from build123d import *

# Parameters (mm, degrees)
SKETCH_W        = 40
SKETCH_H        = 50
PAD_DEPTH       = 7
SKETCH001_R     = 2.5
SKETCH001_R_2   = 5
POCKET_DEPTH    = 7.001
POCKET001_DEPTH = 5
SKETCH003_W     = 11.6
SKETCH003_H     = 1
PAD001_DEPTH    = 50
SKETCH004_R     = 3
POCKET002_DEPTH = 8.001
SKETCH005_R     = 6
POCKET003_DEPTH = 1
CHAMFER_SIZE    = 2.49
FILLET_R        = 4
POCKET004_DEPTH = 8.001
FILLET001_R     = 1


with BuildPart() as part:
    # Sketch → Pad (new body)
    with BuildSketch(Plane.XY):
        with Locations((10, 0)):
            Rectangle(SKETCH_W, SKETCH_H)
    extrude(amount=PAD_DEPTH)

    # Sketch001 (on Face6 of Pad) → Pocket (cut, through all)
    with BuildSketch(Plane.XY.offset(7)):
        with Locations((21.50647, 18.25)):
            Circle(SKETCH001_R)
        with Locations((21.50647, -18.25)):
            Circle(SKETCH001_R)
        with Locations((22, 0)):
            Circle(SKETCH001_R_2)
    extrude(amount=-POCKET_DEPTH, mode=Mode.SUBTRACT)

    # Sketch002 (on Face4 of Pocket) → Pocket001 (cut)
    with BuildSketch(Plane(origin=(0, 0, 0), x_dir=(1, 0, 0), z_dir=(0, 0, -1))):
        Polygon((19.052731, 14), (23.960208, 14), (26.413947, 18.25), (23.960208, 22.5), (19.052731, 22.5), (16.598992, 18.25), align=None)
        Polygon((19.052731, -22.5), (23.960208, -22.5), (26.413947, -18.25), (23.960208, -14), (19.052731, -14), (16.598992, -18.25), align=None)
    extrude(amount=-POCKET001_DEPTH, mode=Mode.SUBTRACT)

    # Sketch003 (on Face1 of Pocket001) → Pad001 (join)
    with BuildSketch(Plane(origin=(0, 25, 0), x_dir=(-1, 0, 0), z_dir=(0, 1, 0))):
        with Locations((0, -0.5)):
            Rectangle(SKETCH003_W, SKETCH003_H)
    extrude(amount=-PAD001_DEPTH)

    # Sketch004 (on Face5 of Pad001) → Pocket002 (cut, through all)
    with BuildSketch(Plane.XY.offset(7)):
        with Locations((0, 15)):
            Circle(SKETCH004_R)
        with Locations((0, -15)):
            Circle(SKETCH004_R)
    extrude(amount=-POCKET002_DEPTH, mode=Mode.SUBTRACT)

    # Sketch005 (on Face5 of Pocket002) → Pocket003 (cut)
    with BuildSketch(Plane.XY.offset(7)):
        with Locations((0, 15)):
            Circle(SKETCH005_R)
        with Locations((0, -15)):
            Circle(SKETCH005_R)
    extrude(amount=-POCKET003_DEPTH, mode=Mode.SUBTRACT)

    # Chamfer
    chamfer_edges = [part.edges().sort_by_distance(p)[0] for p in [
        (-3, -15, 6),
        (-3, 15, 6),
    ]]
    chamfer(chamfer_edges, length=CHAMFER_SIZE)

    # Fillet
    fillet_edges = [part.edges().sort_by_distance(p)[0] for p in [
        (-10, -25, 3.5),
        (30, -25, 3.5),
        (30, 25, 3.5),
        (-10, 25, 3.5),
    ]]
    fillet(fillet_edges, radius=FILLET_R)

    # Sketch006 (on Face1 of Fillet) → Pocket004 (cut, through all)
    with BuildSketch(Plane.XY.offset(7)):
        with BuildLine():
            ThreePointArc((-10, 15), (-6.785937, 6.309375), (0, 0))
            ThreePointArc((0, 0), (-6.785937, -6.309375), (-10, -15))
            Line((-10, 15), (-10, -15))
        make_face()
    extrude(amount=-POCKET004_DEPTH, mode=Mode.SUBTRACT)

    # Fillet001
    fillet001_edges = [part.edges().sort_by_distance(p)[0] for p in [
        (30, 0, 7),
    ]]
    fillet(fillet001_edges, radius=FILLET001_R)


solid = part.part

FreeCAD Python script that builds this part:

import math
import FreeCAD as App
import Part
import Sketcher

V = App.Vector
Q = App.Units.Quantity


def edges_at(feature, points):
    """Names of the edges that pass closest to the given points."""
    edges = feature.Shape.Edges
    near = lambda p: min(range(len(edges)), key=lambda i: edges[i].distToShape(Part.Vertex(*p))[0])
    return sorted({f"Edge{near(p) + 1}" for p in points})


def add_polygon(sketch, points):
    """Adds a closed chain of lines whose ends are joined by coincident constraints."""
    first, n = sketch.GeometryCount, len(points)
    for a, b in zip(points, points[1:] + points[:1]):
        sketch.addGeometry(Part.LineSegment(App.Vector(*a, 0), App.Vector(*b, 0)), False)
    for i in range(n):
        sketch.addConstraint(Sketcher.Constraint("Coincident", first + i, 2, first + (i + 1) % n, 1))

doc = App.newDocument("Part")
body = doc.addObject("PartDesign::Body", "Body")

# Sketch on XY plane
sketch1 = body.newObject("Sketcher::SketchObject", "Sketch")
sketch1.AttachmentSupport = (doc.getObject("XY_Plane"), [""])
sketch1.MapMode = "FlatFace"
add_polygon(sketch1, [(-10, 25), (-10, -25), (30, -25), (30, 25)])  # lines 0-3
sketch1.addConstraint([
    Sketcher.Constraint("Vertical", 0),
    Sketcher.Constraint("Horizontal", 1),
    Sketcher.Constraint("Vertical", 2),
    Sketcher.Constraint("Horizontal", 3),
    Sketcher.Constraint("DistanceX", 1, 1, 1, 2, Q("40 mm")),
    Sketcher.Constraint("DistanceY", 0, 2, 0, 1, Q("50 mm")),
    Sketcher.Constraint("DistanceX", 0, 2, -1, 1, Q("10 mm")),
    Sketcher.Constraint("DistanceY", 0, 2, -1, 1, Q("25 mm")),
])
pad1 = body.newObject("PartDesign::Pad", "Pad")
pad1.Profile = sketch1
pad1.Length = 7

# Sketch on XY plane
sketch2 = body.newObject("Sketcher::SketchObject", "Sketch001")
sketch2.AttachmentSupport = (doc.getObject("XY_Plane"), [""])
sketch2.MapMode = "FlatFace"
sketch2.AttachmentOffset = App.Placement(V(0, 0, 7), App.Rotation())
sketch2.addGeometry([
    Part.Circle(V(21.5, 18.2, 0), V(0, 0, 1), 2.5),
    Part.Circle(V(21.5, -18.2, 0), V(0, 0, 1), 2.5),
    Part.Circle(V(22, 0, 0), V(0, 0, 1), 5),
], False)
sketch2.addConstraint([
    Sketcher.Constraint("Equal", 0, 1),
    Sketcher.Constraint("Symmetric", 0, 3, 1, 3, -1),
    Sketcher.Constraint("PointOnObject", 2, 3, -1),
    Sketcher.Constraint("Diameter", 0, Q("5 mm")),
    Sketcher.Constraint("Diameter", 2, Q("10 mm")),
    Sketcher.Constraint("DistanceX", -1, 1, 2, 3, Q("22 mm")),
    Sketcher.Constraint("DistanceY", 1, 3, 0, 3, Q("36.5 mm")),
    Sketcher.Constraint("DistanceX", -1, 1, 0, 3, Q("21.50647 mm")),
])
pocket1 = body.newObject("PartDesign::Pocket", "Pocket")
pocket1.Profile = sketch2
pocket1.Type = "ThroughAll"

# Sketch on XY plane
sketch3 = body.newObject("Sketcher::SketchObject", "Sketch002")
sketch3.AttachmentSupport = (doc.getObject("XY_Plane"), [""])
sketch3.MapMode = "FlatFace"
add_polygon(sketch3, [(19.1, -14), (24, -14), (26.4, -18.2), (24, -22.5), (19.1, -22.5), (16.6, -18.2)])  # lines 0-5
add_polygon(sketch3, [(19.1, 22.5), (24, 22.5), (26.4, 18.2), (24, 14), (19.1, 14), (16.6, 18.2)])  # lines 6-11
sketch3.addConstraint([
    Sketcher.Constraint("Horizontal", 0),
    Sketcher.Constraint("Horizontal", 3),
    Sketcher.Constraint("Horizontal", 6),
    Sketcher.Constraint("Horizontal", 9),
    Sketcher.Constraint("Symmetric", 2, 2, 6, 2, -1),
    Sketcher.Constraint("Symmetric", 1, 2, 7, 2, -1),
    Sketcher.Constraint("Symmetric", 0, 2, 8, 2, -1),
    Sketcher.Constraint("Symmetric", 4, 2, 10, 2, -1),
    Sketcher.Constraint("Parallel", 1, 4),
    Sketcher.Constraint("Parallel", 2, 5),
    Sketcher.Constraint("Parallel", 4, 7),
    Sketcher.Constraint("Parallel", 7, 10),
    Sketcher.Constraint("Parallel", 8, 11),
    Sketcher.Constraint("Horizontal", 1, 2, 4, 2),
    Sketcher.Constraint("Vertical", 0, 2, 2, 2),
    Sketcher.Constraint("Angle", 1, Q("-59.999996 deg")),
    Sketcher.Constraint("DistanceY", 0, 2, -1, 1, Q("14 mm")),
    Sketcher.Constraint("DistanceY", 2, 2, 6, 2, Q("45 mm")),
    Sketcher.Constraint("DistanceX", 0, 1, 0, 2, Q("4.907477 mm")),
    Sketcher.Constraint("DistanceX", -1, 1, 0, 2, Q("23.960208 mm")),
])
pocket2 = body.newObject("PartDesign::Pocket", "Pocket001")
pocket2.Profile = sketch3
pocket2.Length = 5
pocket2.Reversed = True

# Sketch on XZ plane
sketch4 = body.newObject("Sketcher::SketchObject", "Sketch003")
sketch4.AttachmentSupport = (doc.getObject("XZ_Plane"), [""])
sketch4.MapMode = "FlatFace"
sketch4.AttachmentOffset = App.Placement(V(0, 0, -25), App.Rotation())
add_polygon(sketch4, [(5.8, 0), (5.8, -1), (-5.8, -1), (-5.8, 0)])  # lines 0-3
sketch4.addConstraint([
    Sketcher.Constraint("Vertical", 0),
    Sketcher.Constraint("Horizontal", 1),
    Sketcher.Constraint("Vertical", 2),
    Sketcher.Constraint("Horizontal", 3),
    Sketcher.Constraint("Symmetric", 2, 2, 3, 2, -1, 1),
    Sketcher.Constraint("DistanceY", 0, 2, 0, 1, Q("1 mm")),
    Sketcher.Constraint("DistanceX", 1, 2, 1, 1, Q("11.6 mm")),
])
pad2 = body.newObject("PartDesign::Pad", "Pad001")
pad2.Profile = sketch4
pad2.Length = 50

# Sketch on XY plane
sketch5 = body.newObject("Sketcher::SketchObject", "Sketch004")
sketch5.AttachmentSupport = (doc.getObject("XY_Plane"), [""])
sketch5.MapMode = "FlatFace"
sketch5.AttachmentOffset = App.Placement(V(0, 0, 7), App.Rotation())
sketch5.addGeometry([
    Part.Circle(V(0, 15, 0), V(0, 0, 1), 3),
    Part.Circle(V(0, -15, 0), V(0, 0, 1), 3),
], False)
sketch5.addConstraint([
    Sketcher.Constraint("Equal", 0, 1),
    Sketcher.Constraint("Symmetric", 0, 3, 1, 3, -1, 1),
    Sketcher.Constraint("PointOnObject", 0, 3, -2),
    Sketcher.Constraint("Diameter", 0, Q("6 mm")),
    Sketcher.Constraint("DistanceY", -1, 1, 0, 3, Q("15 mm")),
])
pocket3 = body.newObject("PartDesign::Pocket", "Pocket002")
pocket3.Profile = sketch5
pocket3.Type = "ThroughAll"

# Sketch on XY plane
sketch6 = body.newObject("Sketcher::SketchObject", "Sketch005")
sketch6.AttachmentSupport = (doc.getObject("XY_Plane"), [""])
sketch6.MapMode = "FlatFace"
sketch6.AttachmentOffset = App.Placement(V(0, 0, 7), App.Rotation())
sketch6.addGeometry([
    Part.Circle(V(0, 15, 0), V(0, 0, 1), 6),
    Part.Circle(V(0, -15, 0), V(0, 0, 1), 6),
], False)
sketch6.addConstraint([
    Sketcher.Constraint("Equal", 0, 1),
    Sketcher.Constraint("Symmetric", 0, 3, 1, 3, -1, 1),
    Sketcher.Constraint("PointOnObject", 0, 3, -2),
    Sketcher.Constraint("Diameter", 0, Q("12 mm")),
    Sketcher.Constraint("DistanceY", -1, 1, 0, 3, Q("15 mm")),
])
pocket4 = body.newObject("PartDesign::Pocket", "Pocket003")
pocket4.Profile = sketch6
pocket4.Length = 1
doc.recompute()

chamfer = body.newObject("PartDesign::Chamfer", "Chamfer")
chamfer.Base = (pocket4, edges_at(pocket4, [(-3, -15, 6), (-3, 15, 6)]))
chamfer.Size = 2.49
doc.recompute()

fillet = body.newObject("PartDesign::Fillet", "Fillet")
fillet.Base = (chamfer, edges_at(chamfer, [
    (-10, -25, 3.5),
    (30, -25, 3.5),
    (30, 25, 3.5),
    (-10, 25, 3.5),
]))
fillet.Radius = 4

# Sketch on XY plane
sketch7 = body.newObject("Sketcher::SketchObject", "Sketch006")
sketch7.AttachmentSupport = (doc.getObject("XY_Plane"), [""])
sketch7.MapMode = "FlatFace"
sketch7.AttachmentOffset = App.Placement(V(0, 0, 7), App.Rotation())
sketch7.addGeometry([
    Part.ArcOfCircle(Part.Circle(V(10, 17, 0), V(0, 0, 1), 20), math.radians(-173), math.radians(-120)),
    Part.LineSegment(V(-10, 15, 0), V(-10, -15, 0)),
    Part.ArcOfCircle(Part.Circle(V(10, -17, 0), V(0, 0, 1), 20), math.radians(120), math.radians(173)),
], False)
sketch7.addConstraint([
    Sketcher.Constraint("Coincident", 0, 1, 1, 1),
    Sketcher.Constraint("Coincident", 1, 2, 2, 2),
    Sketcher.Constraint("Coincident", 2, 1, 0, 2),
    Sketcher.Constraint("Vertical", 1),
    Sketcher.Constraint("Coincident", 2, 1, -1, 1),
    Sketcher.Constraint("Equal", 0, 2),
    Sketcher.Constraint("Vertical", 0, 3, 2, 3),
    Sketcher.Constraint("DistanceY", 1, 2, 1, 1, Q("30 mm")),
    Sketcher.Constraint("DistanceX", 0, 1, -1, 1, Q("10 mm")),
    Sketcher.Constraint("Radius", 0, Q("19.999997 mm")),
])
pocket5 = body.newObject("PartDesign::Pocket", "Pocket004")
pocket5.Profile = sketch7
pocket5.Type = "ThroughAll"
doc.recompute()

fillet2 = body.newObject("PartDesign::Fillet", "Fillet001")
fillet2.Base = (pocket5, edges_at(pocket5, [(30, 0, 7)]))
fillet2.Radius = 1

doc.recompute()
